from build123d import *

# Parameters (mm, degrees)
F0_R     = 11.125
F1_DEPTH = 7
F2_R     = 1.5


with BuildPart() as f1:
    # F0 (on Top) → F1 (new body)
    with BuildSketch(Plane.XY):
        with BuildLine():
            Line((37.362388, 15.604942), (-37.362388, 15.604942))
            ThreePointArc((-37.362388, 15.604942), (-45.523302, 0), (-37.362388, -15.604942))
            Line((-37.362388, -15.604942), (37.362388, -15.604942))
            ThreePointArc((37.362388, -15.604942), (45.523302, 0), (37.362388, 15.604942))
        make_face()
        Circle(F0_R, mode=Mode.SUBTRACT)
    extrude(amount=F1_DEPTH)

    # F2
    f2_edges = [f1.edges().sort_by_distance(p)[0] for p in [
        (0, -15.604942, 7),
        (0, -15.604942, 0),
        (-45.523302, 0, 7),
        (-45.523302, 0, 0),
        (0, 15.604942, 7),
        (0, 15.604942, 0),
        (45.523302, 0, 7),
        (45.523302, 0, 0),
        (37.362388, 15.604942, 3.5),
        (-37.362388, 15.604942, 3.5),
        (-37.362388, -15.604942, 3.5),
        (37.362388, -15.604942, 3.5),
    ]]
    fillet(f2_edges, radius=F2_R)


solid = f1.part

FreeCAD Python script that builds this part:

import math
import FreeCAD as App
import Part
import Sketcher

V = App.Vector
Q = App.Units.Quantity


def edges_at(feature, points):
    """Names of the edges that pass closest to the given points."""
    edges = feature.Shape.Edges
    near = lambda p: min(range(len(edges)), key=lambda i: edges[i].distToShape(Part.Vertex(*p))[0])
    return sorted({f"Edge{near(p) + 1}" for p in points})

doc = App.newDocument("Part")
body = doc.addObject("PartDesign::Body", "Body")

# Sketch on XY plane
sketch1 = body.newObject("Sketcher::SketchObject", "Sketch")
sketch1.AttachmentSupport = (doc.getObject("XY_Plane"), [""])
sketch1.MapMode = "FlatFace"
sketch1.addGeometry(Part.LineSegment(V(37, 16, 0), V(-37, 16, 0)), False)
sketch1.addGeometry(Part.ArcOfCircle(Part.Circle(V(-27, 0, 0), V(0, 0, 1), 19), math.radians(125), math.radians(235)), False)
sketch1.addGeometry(Part.LineSegment(V(-37, -16, 0), V(37, -16, 0)), False)
sketch1.addGeometry(Part.ArcOfCircle(Part.Circle(V(27, 0, 0), V(0, 0, 1), 19), math.radians(-55), math.radians(55)), False)
sketch1.addGeometry(Part.Circle(V(0, 0, 0), V(0, 0, 1), 11), False)
sketch1.addConstraint(Sketcher.Constraint("Coincident", 0, 2, 1, 1))
sketch1.addConstraint(Sketcher.Constraint("Coincident", 1, 2, 2, 1))
sketch1.addConstraint(Sketcher.Constraint("Coincident", 2, 2, 3, 1))
sketch1.addConstraint(Sketcher.Constraint("Coincident", 3, 2, 0, 1))
sketch1.addConstraint(Sketcher.Constraint("Horizontal", 0))
sketch1.addConstraint(Sketcher.Constraint("Horizontal", 2))
sketch1.addConstraint(Sketcher.Constraint("Coincident", 4, 3, -1, 1))
sketch1.addConstraint(Sketcher.Constraint("Equal", 1, 3))
sketch1.addConstraint(Sketcher.Constraint("Symmetric", 1, 3, 3, 3, -1, 1))
sketch1.addConstraint(Sketcher.Constraint("Symmetric", 0, 2, 1, 2, -1))
sketch1.addConstraint(Sketcher.Constraint("Radius", 1, Q("19 mm")))
sketch1.addConstraint(Sketcher.Constraint("Diameter", 4, Q("22.25 mm")))
sketch1.addConstraint(Sketcher.Constraint("DistanceX", 1, 3, -1, 1, Q("26.523302 mm")))
sketch1.addConstraint(Sketcher.Constraint("DistanceX", 0, 2, 0, 1, Q("74.724776 mm")))
pad1 = body.newObject("PartDesign::Pad", "Pad")
pad1.Profile = sketch1
pad1.Length = 7
doc.recompute()

fillet = body.newObject("PartDesign::Fillet", "Fillet")
fillet.Base = (pad1, edges_at(pad1, [
    (0, -15.605, 7),
    (0, -15.605, 0),
    (-45.523, 0, 7),
    (-45.523, 0, 0),
    (0, 15.605, 7),
    (0, 15.605, 0),
    (45.523, 0, 7),
    (45.523, 0, 0),
    (37.362, 15.605, 3.5),
    (-37.362, 15.605, 3.5),
    (-37.362, -15.605, 3.5),
    (37.362, -15.605, 3.5),
]))
fillet.Radius = 1.5

doc.recompute()
